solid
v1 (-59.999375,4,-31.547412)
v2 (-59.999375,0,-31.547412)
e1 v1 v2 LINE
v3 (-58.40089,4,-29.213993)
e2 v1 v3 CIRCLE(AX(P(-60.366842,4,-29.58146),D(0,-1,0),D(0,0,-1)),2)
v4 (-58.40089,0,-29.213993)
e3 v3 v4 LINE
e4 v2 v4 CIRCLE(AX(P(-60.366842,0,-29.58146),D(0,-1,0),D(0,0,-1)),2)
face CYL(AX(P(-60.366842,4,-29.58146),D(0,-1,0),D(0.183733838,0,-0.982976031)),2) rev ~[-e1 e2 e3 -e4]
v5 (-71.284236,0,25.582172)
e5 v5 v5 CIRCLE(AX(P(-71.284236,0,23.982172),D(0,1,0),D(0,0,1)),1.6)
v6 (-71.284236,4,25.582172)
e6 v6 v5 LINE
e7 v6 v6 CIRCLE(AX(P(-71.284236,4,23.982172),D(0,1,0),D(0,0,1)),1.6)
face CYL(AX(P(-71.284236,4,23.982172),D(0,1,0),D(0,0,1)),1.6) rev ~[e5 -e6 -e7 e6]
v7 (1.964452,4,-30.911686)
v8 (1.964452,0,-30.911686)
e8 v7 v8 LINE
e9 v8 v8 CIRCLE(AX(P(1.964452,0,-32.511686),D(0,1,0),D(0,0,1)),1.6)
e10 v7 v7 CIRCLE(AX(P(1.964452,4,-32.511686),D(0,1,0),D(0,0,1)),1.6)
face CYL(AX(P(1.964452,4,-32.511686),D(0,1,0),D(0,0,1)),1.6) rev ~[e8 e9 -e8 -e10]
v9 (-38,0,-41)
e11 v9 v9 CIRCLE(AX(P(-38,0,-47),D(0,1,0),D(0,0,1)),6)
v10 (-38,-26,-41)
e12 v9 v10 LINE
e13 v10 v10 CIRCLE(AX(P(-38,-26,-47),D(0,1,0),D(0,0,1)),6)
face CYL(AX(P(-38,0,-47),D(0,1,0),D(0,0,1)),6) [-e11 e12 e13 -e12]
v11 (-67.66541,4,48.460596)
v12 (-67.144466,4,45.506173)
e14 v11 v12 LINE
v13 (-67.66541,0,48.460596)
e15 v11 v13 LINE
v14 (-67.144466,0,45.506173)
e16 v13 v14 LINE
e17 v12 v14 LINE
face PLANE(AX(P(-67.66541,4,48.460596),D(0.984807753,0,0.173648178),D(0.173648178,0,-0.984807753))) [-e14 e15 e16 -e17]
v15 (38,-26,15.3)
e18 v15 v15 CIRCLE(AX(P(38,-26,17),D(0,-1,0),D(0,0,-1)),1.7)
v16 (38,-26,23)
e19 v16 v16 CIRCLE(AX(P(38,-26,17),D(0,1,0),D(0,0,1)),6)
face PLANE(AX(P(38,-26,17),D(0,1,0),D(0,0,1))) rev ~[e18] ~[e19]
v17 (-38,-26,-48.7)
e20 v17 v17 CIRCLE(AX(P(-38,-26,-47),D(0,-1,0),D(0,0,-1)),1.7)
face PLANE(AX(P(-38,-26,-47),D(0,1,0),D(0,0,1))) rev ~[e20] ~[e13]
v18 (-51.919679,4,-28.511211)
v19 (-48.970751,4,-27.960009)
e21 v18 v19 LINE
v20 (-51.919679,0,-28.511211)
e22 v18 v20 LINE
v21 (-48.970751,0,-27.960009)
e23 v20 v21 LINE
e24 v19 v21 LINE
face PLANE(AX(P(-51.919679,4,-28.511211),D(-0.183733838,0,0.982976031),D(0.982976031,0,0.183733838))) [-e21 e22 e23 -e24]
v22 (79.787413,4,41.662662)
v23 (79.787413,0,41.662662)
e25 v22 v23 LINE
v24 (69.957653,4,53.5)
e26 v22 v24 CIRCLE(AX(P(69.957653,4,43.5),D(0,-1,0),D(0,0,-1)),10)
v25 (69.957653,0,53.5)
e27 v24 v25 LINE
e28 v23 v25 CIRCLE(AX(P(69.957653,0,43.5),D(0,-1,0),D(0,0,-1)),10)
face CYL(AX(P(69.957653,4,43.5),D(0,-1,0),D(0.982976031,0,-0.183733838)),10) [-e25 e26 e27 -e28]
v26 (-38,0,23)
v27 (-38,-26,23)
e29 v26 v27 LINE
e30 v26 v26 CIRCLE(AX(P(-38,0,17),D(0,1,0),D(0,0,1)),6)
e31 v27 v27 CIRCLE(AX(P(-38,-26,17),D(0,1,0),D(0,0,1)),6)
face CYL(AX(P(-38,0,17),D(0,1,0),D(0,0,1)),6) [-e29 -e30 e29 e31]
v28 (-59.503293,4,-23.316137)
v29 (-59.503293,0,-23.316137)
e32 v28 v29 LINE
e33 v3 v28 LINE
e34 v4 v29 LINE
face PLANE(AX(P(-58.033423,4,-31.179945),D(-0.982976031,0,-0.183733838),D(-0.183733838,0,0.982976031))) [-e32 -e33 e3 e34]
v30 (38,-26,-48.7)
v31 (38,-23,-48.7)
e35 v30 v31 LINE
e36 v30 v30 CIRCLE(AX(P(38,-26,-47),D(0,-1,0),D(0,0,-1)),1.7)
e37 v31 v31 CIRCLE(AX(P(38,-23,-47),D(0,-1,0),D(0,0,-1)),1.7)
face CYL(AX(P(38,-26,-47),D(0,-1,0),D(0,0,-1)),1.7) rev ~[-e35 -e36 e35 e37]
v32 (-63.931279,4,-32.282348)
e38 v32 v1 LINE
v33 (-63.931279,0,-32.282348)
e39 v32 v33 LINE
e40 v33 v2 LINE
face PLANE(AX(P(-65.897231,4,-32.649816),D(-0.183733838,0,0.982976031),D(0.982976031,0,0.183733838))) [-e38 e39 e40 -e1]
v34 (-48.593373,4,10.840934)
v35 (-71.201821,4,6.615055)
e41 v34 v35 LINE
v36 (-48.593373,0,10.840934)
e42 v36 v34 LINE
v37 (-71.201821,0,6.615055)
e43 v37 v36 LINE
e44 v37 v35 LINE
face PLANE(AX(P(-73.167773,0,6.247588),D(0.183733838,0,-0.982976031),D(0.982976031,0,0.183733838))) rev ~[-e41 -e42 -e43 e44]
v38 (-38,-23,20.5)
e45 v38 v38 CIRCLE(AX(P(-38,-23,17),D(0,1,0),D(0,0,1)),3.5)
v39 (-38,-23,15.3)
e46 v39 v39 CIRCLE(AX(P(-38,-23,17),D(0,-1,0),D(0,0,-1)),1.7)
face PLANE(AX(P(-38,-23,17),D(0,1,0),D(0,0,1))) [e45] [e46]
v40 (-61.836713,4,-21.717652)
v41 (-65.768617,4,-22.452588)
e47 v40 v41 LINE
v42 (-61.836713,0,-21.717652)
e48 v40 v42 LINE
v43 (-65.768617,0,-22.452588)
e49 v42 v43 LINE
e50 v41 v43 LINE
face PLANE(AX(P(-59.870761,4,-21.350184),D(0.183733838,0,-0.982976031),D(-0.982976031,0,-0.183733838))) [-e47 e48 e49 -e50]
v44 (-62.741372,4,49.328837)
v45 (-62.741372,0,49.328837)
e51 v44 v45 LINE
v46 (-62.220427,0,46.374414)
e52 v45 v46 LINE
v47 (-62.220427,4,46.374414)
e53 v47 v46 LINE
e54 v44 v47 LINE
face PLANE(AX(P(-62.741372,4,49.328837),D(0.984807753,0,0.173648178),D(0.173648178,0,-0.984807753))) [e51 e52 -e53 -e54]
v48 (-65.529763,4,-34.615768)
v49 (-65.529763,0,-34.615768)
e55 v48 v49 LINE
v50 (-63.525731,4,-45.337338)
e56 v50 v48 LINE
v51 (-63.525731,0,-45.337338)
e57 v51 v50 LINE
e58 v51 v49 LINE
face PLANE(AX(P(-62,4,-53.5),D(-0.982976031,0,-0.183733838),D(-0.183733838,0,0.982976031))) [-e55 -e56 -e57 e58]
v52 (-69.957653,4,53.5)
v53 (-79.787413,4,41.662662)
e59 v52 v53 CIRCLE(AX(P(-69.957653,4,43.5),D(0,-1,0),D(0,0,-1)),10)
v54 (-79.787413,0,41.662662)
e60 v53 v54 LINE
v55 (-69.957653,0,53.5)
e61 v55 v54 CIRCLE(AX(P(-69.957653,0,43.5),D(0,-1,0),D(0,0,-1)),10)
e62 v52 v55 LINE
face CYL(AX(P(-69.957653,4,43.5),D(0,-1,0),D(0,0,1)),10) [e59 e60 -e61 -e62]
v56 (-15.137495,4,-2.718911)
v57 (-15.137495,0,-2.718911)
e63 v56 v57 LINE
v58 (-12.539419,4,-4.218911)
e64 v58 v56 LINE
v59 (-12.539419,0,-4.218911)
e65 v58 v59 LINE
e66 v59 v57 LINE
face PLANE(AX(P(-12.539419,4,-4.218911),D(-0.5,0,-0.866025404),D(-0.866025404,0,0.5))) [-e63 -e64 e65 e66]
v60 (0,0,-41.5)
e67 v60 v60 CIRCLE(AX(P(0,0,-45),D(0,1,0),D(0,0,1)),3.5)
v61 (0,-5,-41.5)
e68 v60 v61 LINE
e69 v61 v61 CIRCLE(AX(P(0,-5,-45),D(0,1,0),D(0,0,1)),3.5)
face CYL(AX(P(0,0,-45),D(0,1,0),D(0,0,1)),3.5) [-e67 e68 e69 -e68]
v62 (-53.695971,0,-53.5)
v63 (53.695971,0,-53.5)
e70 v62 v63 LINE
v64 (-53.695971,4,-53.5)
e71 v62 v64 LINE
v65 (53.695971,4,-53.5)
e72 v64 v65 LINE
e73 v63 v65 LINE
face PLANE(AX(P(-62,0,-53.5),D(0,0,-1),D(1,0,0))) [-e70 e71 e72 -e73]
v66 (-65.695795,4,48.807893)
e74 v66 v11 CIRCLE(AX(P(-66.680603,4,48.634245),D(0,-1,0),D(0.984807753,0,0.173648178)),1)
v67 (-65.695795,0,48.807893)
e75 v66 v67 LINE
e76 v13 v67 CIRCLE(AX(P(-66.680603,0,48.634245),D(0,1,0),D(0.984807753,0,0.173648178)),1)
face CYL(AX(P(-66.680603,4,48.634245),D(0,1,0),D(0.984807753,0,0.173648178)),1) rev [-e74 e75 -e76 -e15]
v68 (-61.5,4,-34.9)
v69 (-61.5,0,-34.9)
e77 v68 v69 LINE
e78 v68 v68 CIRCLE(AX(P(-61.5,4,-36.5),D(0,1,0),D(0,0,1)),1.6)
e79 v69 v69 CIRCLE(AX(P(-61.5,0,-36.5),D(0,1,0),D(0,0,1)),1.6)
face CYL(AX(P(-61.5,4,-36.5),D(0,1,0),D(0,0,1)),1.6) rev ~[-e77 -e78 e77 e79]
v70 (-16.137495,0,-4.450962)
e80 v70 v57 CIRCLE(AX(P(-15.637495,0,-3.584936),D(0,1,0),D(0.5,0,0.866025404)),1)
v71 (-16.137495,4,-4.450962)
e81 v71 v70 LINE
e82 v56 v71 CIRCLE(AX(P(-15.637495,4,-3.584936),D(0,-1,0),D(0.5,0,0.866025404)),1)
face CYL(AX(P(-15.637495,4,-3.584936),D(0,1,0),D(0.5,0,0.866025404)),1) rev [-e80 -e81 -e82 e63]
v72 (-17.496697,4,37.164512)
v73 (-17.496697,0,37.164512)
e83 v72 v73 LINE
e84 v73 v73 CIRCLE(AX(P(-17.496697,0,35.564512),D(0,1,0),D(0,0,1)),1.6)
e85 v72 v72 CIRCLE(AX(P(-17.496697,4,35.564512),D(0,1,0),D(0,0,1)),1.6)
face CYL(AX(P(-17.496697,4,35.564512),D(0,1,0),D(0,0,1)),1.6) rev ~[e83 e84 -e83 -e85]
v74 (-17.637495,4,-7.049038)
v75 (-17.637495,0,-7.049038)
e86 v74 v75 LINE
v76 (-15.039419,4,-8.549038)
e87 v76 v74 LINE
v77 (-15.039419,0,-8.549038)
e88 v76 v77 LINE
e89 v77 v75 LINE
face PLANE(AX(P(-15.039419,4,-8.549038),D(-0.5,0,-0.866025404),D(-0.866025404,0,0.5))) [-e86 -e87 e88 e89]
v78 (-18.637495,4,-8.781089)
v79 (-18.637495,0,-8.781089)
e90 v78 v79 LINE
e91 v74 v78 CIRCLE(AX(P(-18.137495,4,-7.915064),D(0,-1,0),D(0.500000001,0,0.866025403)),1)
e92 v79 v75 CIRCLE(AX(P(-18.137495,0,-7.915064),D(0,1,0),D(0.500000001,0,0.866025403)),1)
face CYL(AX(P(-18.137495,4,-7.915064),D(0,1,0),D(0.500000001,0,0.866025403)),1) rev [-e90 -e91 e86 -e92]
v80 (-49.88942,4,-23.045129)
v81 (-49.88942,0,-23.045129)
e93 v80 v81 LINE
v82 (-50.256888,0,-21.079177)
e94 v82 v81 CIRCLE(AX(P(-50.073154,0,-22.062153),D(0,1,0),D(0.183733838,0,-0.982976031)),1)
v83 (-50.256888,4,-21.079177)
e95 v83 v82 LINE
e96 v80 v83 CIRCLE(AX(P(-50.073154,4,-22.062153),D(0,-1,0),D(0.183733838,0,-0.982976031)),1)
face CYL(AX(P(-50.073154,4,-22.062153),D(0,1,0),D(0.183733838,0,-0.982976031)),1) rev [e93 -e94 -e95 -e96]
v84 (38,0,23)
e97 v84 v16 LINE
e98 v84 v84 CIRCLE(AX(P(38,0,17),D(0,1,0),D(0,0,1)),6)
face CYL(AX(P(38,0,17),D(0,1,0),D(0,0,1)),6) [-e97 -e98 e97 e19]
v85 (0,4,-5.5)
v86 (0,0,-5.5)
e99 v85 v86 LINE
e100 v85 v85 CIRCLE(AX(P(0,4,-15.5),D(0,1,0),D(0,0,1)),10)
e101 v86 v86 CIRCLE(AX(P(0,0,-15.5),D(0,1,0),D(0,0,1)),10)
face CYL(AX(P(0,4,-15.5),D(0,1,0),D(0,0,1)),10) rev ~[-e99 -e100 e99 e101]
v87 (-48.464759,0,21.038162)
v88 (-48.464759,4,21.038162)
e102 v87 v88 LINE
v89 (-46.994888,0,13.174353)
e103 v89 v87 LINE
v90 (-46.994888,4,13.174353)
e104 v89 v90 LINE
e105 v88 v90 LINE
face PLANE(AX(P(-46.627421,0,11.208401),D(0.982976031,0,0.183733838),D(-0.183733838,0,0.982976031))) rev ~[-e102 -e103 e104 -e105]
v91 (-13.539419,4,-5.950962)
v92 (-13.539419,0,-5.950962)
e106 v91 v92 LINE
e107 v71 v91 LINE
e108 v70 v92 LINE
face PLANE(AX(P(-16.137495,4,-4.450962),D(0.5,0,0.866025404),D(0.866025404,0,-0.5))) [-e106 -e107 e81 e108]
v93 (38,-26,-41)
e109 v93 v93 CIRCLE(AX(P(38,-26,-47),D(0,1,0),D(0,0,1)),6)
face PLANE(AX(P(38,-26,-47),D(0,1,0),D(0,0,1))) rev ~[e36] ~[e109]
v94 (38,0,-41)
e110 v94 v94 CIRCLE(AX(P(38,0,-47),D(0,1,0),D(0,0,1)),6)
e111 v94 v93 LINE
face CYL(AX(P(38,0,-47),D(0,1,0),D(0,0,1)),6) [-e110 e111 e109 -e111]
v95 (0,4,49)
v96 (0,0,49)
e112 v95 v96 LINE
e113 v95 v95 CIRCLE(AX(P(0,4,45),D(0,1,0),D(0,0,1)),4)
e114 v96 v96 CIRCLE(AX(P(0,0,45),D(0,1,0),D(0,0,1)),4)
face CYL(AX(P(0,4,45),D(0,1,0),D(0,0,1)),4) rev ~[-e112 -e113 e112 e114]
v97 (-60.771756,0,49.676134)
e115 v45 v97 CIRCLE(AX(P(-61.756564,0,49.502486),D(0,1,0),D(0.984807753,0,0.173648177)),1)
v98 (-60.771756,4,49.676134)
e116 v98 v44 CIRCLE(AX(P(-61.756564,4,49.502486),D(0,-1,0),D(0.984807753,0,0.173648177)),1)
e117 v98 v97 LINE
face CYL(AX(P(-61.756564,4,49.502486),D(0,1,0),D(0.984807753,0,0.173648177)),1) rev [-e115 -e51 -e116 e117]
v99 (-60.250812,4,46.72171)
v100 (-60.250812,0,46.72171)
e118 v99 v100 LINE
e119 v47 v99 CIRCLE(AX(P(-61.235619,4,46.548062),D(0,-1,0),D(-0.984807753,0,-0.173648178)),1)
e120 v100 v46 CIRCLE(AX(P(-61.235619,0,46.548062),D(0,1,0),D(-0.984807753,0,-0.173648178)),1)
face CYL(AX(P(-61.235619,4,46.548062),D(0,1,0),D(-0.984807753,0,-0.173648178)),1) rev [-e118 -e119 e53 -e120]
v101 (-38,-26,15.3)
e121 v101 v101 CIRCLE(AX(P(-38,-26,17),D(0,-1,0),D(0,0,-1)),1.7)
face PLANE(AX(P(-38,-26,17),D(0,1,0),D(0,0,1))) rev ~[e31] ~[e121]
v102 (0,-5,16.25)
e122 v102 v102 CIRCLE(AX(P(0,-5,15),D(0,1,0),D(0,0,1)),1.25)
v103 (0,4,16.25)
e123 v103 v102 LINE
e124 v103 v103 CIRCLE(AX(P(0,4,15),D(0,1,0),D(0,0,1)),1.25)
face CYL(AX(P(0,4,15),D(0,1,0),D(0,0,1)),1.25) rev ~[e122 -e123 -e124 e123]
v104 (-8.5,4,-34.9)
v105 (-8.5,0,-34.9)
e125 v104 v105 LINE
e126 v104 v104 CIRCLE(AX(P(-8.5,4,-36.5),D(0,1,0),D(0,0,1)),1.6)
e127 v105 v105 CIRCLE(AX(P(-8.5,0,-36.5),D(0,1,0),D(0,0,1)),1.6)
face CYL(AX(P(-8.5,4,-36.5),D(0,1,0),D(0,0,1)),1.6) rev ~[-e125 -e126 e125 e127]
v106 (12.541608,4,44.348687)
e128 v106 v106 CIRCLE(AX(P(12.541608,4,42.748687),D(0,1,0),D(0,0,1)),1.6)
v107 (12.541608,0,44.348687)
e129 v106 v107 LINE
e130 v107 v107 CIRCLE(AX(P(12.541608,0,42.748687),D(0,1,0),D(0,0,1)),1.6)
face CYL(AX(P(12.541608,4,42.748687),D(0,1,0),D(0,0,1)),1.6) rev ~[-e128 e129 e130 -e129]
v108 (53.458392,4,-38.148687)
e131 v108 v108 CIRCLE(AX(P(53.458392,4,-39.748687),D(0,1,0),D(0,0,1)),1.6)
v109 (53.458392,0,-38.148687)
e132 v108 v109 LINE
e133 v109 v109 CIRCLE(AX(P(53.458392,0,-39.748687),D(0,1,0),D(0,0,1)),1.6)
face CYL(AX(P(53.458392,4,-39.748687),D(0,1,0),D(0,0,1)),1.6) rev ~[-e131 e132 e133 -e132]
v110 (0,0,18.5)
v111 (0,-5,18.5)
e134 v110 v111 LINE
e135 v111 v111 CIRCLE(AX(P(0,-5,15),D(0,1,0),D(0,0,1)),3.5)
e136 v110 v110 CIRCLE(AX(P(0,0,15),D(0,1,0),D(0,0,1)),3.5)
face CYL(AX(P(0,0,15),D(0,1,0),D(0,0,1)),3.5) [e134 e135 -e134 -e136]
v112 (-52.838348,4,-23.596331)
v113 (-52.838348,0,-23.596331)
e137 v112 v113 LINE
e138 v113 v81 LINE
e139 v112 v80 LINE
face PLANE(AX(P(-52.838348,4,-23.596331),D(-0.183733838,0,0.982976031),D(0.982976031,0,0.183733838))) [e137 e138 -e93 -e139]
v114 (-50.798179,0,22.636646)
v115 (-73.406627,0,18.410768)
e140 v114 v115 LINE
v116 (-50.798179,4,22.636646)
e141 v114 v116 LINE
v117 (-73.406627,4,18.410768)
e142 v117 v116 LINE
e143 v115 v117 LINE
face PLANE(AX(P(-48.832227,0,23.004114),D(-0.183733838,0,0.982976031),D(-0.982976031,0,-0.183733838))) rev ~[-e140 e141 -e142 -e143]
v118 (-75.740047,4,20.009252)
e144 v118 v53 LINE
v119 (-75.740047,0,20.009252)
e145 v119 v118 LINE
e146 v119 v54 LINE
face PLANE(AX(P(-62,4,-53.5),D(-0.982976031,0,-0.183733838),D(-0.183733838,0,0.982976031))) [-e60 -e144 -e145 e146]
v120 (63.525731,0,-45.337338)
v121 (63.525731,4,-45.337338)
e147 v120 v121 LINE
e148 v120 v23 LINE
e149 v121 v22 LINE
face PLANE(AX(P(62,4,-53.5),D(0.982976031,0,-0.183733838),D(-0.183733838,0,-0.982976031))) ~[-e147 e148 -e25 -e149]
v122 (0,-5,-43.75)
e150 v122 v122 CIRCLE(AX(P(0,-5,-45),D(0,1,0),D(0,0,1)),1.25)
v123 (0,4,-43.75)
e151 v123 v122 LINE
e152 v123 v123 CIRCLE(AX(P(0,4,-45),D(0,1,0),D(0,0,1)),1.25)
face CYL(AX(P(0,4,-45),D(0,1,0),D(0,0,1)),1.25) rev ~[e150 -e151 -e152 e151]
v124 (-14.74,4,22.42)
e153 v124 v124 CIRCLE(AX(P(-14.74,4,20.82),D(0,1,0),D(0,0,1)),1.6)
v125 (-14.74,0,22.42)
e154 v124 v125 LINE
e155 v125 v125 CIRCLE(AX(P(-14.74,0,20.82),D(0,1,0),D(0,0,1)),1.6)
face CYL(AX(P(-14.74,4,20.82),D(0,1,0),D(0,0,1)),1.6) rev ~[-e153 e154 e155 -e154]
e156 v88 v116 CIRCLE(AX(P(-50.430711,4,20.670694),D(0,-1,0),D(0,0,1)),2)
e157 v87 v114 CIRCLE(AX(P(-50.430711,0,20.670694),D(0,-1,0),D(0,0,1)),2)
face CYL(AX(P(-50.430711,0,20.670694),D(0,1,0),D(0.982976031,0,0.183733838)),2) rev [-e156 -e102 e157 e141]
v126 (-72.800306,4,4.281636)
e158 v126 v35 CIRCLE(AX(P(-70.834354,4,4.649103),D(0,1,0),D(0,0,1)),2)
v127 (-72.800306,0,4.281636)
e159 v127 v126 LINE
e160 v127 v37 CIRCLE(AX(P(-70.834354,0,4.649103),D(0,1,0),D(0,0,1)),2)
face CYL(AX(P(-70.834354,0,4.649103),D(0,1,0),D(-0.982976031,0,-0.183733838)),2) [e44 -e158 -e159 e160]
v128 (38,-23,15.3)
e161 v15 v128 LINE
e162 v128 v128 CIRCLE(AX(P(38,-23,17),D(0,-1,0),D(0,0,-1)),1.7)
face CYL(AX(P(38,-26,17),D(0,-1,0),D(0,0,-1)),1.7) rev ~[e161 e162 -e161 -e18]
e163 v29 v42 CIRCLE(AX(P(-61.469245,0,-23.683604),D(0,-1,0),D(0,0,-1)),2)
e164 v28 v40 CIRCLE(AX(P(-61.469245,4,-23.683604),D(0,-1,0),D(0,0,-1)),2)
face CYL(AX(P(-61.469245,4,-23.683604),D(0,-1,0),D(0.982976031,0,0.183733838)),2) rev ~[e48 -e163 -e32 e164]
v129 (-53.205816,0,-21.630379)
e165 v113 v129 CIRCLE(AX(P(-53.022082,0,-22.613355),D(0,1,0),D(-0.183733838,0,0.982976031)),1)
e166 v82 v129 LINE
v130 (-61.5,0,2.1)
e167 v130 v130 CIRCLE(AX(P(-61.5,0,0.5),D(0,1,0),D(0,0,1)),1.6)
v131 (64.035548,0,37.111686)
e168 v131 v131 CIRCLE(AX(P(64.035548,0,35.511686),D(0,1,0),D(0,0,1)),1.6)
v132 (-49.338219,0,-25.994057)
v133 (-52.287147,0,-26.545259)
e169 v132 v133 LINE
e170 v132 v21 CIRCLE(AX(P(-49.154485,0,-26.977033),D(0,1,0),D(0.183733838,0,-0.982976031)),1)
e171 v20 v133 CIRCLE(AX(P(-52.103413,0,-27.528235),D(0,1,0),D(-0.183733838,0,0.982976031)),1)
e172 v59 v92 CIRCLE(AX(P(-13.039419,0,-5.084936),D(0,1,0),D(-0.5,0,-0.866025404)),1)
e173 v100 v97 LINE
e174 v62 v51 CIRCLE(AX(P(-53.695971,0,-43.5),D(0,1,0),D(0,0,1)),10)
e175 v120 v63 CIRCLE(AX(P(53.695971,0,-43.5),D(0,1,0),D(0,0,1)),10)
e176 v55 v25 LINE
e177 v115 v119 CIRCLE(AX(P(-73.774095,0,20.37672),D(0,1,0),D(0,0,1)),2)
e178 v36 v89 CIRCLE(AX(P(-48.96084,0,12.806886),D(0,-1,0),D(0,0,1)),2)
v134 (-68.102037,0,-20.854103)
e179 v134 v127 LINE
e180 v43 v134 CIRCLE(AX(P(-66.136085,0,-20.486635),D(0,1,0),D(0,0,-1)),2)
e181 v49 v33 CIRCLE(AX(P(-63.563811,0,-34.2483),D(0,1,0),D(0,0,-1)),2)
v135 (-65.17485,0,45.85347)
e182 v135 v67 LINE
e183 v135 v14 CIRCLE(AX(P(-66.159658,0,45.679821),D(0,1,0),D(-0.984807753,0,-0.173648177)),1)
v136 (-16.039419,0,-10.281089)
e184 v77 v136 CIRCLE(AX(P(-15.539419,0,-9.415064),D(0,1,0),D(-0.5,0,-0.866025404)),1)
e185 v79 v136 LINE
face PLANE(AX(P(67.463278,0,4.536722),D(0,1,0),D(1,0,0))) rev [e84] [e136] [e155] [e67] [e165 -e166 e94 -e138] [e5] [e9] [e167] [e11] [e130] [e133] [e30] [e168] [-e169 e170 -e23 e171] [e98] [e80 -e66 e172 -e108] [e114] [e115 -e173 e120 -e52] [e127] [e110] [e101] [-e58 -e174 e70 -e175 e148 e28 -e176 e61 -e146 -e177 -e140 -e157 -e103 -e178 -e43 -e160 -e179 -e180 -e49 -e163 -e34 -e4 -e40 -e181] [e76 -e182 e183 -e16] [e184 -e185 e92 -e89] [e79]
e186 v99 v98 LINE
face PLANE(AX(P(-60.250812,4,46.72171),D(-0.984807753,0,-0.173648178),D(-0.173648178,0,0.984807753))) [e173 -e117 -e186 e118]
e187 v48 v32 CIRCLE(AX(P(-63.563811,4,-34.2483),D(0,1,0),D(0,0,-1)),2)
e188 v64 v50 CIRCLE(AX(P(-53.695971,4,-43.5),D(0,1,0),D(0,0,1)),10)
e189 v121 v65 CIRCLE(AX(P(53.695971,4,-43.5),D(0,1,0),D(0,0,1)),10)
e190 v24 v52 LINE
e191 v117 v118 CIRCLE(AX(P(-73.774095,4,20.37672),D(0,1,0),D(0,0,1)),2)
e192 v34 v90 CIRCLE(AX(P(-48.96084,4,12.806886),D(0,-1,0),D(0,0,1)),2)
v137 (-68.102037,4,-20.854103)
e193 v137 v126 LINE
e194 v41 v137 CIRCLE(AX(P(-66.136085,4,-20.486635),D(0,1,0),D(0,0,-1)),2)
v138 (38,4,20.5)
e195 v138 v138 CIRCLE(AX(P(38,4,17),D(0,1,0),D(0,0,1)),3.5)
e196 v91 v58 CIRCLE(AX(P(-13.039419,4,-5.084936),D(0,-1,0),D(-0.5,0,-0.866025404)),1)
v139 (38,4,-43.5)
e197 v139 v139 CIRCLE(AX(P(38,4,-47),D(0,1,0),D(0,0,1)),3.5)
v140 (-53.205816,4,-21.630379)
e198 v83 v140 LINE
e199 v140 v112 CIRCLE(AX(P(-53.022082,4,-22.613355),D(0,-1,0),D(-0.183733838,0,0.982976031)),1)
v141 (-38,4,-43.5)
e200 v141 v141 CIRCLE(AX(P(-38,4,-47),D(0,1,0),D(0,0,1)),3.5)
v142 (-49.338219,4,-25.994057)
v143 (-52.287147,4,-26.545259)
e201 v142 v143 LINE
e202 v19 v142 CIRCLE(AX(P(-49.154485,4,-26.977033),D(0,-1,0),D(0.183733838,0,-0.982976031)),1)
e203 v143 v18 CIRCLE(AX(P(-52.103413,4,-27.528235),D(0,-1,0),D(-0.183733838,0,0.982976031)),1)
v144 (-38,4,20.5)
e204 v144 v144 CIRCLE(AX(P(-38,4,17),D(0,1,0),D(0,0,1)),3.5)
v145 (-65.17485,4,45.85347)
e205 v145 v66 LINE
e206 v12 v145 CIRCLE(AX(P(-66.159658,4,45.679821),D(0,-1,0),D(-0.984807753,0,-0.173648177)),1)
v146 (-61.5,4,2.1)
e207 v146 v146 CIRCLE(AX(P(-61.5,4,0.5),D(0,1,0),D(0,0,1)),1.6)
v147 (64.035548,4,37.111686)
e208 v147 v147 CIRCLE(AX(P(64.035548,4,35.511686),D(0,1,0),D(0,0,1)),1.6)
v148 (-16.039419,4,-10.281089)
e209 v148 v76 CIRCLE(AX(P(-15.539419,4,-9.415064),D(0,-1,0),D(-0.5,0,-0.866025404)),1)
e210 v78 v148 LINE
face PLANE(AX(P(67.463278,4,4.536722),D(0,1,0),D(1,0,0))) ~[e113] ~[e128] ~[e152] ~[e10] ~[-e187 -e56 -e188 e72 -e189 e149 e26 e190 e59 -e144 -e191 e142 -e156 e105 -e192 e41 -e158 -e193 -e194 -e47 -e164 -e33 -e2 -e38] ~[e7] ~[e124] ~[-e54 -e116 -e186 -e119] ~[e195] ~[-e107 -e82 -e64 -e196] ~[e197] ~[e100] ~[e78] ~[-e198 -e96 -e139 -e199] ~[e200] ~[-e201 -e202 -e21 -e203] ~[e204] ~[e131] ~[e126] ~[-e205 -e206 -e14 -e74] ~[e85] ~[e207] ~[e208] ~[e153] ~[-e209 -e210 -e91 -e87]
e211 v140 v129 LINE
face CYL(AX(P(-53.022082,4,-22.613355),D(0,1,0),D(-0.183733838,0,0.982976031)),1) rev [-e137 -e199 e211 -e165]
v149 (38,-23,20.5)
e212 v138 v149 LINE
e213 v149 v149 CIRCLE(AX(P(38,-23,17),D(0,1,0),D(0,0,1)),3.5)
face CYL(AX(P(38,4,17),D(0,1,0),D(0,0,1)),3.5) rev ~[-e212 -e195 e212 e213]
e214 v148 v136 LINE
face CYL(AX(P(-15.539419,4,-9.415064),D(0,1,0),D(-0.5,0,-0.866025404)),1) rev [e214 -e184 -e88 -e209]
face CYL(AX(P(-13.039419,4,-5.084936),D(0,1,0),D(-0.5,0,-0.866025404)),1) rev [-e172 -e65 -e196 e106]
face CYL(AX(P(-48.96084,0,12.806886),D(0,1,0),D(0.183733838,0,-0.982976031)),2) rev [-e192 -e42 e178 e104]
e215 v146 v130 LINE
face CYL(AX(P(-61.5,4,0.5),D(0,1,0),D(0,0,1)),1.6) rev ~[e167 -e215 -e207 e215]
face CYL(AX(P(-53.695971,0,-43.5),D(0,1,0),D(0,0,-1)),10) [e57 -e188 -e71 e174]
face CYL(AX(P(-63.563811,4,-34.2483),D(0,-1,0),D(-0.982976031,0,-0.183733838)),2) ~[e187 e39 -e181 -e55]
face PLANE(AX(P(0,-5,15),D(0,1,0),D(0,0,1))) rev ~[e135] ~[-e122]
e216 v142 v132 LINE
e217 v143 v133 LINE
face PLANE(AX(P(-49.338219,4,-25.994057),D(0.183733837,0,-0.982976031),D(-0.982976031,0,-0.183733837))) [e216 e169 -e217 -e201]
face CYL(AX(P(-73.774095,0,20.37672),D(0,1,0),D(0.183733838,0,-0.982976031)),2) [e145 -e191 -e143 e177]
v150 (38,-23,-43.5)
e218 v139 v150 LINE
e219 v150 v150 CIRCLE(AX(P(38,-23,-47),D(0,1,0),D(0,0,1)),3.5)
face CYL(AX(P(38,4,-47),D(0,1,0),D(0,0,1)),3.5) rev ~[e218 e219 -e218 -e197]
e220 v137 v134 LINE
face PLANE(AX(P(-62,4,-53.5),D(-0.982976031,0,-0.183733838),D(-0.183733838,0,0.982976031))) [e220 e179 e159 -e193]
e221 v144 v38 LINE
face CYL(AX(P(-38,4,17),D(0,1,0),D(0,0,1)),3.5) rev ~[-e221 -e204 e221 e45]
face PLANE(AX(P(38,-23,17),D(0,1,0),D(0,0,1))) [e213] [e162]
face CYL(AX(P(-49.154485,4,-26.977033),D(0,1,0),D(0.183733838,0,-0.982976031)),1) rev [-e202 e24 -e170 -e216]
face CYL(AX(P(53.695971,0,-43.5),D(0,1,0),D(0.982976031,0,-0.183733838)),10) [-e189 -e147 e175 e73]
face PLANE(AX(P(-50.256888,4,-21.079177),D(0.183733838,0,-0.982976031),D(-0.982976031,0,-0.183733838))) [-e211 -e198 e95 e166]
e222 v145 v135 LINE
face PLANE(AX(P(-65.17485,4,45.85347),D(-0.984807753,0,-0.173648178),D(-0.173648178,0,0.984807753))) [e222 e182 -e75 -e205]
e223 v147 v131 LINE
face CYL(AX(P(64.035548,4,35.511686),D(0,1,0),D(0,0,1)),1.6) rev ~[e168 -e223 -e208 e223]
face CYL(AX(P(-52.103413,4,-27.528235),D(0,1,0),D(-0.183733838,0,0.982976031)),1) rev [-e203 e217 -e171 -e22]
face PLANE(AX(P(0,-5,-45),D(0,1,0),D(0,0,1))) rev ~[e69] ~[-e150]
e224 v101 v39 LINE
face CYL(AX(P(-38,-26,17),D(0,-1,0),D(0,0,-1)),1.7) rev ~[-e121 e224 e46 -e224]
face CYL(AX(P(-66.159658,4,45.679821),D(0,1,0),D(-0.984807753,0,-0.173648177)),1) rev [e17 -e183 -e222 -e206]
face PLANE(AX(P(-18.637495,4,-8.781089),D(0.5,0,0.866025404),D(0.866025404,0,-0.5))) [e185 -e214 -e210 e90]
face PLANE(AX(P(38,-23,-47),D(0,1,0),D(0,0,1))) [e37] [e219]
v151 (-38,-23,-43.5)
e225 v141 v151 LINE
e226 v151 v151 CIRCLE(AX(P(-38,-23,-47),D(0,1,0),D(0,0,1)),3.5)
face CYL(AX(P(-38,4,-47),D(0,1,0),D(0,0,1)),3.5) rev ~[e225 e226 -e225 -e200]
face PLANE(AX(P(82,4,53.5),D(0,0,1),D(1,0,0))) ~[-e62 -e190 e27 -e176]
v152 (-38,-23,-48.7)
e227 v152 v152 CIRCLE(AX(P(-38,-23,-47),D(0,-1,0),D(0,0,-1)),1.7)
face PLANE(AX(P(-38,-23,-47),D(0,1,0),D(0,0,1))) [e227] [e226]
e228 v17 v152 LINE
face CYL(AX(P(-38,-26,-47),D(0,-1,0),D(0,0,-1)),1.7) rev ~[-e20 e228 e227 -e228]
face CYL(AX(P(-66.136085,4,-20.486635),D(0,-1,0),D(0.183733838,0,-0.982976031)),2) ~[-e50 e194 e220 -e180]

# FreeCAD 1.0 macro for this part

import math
import FreeCAD as App
import Part
import Sketcher
from FreeCAD import Vector
Q = App.Units.Quantity


def edges_at(feature, points):
    """Names of the edges that pass closest to the given points."""
    edges = feature.Shape.Edges
    near = lambda p: min(range(len(edges)), key=lambda i: edges[i].distToShape(Part.Vertex(*p))[0])
    return sorted({f"Edge{near(p) + 1}" for p in points})

doc = App.newDocument("Part")
body = doc.addObject("PartDesign::Body", "Body")

sketch1 = doc.addObject("Sketcher::SketchObject", "Sketch")
body.addObject(sketch1)
sketch1.AttachmentSupport = (doc.XZ_Plane, [""])
sketch1.MapMode = "FlatFace"
sketch1.addGeometry([
    Part.LineSegment(Vector(-62, -54, 0), Vector(-62, 54, 0)),
    Part.LineSegment(Vector(-62, 54, 0), Vector(62, 54, 0)),
    Part.LineSegment(Vector(62, 54, 0), Vector(62, -54, 0)),
    Part.LineSegment(Vector(62, -54, 0), Vector(-62, -54, 0)),
], False)
sketch1.addConstraint([
    Sketcher.Constraint("Coincident", 0, 2, 1, 1),
    Sketcher.Constraint("Coincident", 1, 2, 2, 1),
    Sketcher.Constraint("Coincident", 2, 2, 3, 1),
    Sketcher.Constraint("Coincident", 3, 2, 0, 1),
    Sketcher.Constraint("Vertical", 0),
    Sketcher.Constraint("Horizontal", 1),
    Sketcher.Constraint("Vertical", 2),
    Sketcher.Constraint("Horizontal", 3),
    Sketcher.Constraint("Symmetric", 0, 2, 2, 2, -1, 1),
    Sketcher.Constraint("DistanceX", 1, 1, 1, 2, 124.0),
    Sketcher.Constraint("DistanceY", 0, 1, 0, 2, 107.0),
])
pad1 = doc.addObject("PartDesign::Pad", "Pad")
body.addObject(pad1)
pad1.Profile = sketch1
pad1.Length = 4
pad1.Reversed = True

sketch2 = doc.addObject("Sketcher::SketchObject", "Sketch001")
body.addObject(sketch2)
sketch2.AttachmentSupport = (doc.XZ_Plane, [""])
sketch2.MapMode = "FlatFace"
sketch2.addGeometry([
    Part.Circle(Vector(-38, 17, 0), Vector(0, 0, 1), 6),
    Part.Circle(Vector(38, 17, 0), Vector(0, 0, 1), 6),
    Part.Circle(Vector(38, -47, 0), Vector(0, 0, 1), 6),
    Part.Circle(Vector(-38, -47, 0), Vector(0, 0, 1), 6),
], False)
sketch2.addConstraint([
    Sketcher.Constraint("Equal", 0, 1),
    Sketcher.Constraint("Equal", 1, 2),
    Sketcher.Constraint("Equal", 2, 3),
    Sketcher.Constraint("Symmetric", 0, 3, 1, 3, -2),
    Sketcher.Constraint("Symmetric", 2, 3, 3, 3, -2),
    Sketcher.Constraint("Vertical", 1, 3, 2, 3),
    Sketcher.Constraint("Diameter", 0, 12.0),
    Sketcher.Constraint("DistanceX", 0, 3, -1, 1, 38.0),
    Sketcher.Constraint("DistanceY", -1, 1, 0, 3, 17.0),
    Sketcher.Constraint("DistanceY", 2, 3, -1, 1, 47.0),
])
pad2 = doc.addObject("PartDesign::Pad", "Pad001")
body.addObject(pad2)
pad2.Profile = sketch2
pad2.Length = 26

sketch3 = doc.addObject("Sketcher::SketchObject", "Sketch002")
body.addObject(sketch3)
sketch3.AttachmentSupport = (doc.XZ_Plane, [""])
sketch3.MapMode = "FlatFace"
sketch3.AttachmentOffset = App.Placement(Vector(0, 0, -4), App.Rotation())
sketch3.addGeometry(Part.Circle(Vector(0, -16, 0), Vector(0, 0, 1), 10), False)
sketch3.addConstraint([
    Sketcher.Constraint("PointOnObject", 0, 3, -2),
    Sketcher.Constraint("Diameter", 0, 20.0),
    Sketcher.Constraint("DistanceY", 0, 3, -1, 1, 15.5),
])
pocket1 = doc.addObject("PartDesign::Pocket", "Pocket")
body.addObject(pocket1)
pocket1.Profile = sketch3
pocket1.Type = "UpToFirst"
pocket1.Reversed = True

sketch4 = doc.addObject("Sketcher::SketchObject", "Sketch003")
body.addObject(sketch4)
sketch4.AttachmentSupport = (doc.XZ_Plane, [""])
sketch4.MapMode = "FlatFace"
sketch4.AttachmentOffset = App.Placement(Vector(0, 0, -4), App.Rotation())
sketch4.addGeometry([
    Part.LineSegment(Vector(-62, -54, 0), Vector(-82, 54, 0)),
    Part.LineSegment(Vector(-82, 54, 0), Vector(-62, 54, 0)),
    Part.LineSegment(Vector(-62, 54, 0), Vector(-62, -54, 0)),
], False)
sketch4.addConstraint([
    Sketcher.Constraint("Coincident", 0, 2, 1, 1),
    Sketcher.Constraint("Coincident", 1, 2, 2, 1),
    Sketcher.Constraint("Coincident", 2, 2, 0, 1),
    Sketcher.Constraint("Horizontal", 1),
    Sketcher.Constraint("Vertical", 2),
    Sketcher.Constraint("DistanceX", 1, 1, 1, 2, 20.0),
    Sketcher.Constraint("DistanceY", 2, 2, 2, 1, 107.0),
    Sketcher.Constraint("DistanceX", 0, 2, -1, 1, 82.0),
    Sketcher.Constraint("DistanceY", -1, 1, 0, 2, 53.5),
])
pad3 = doc.addObject("PartDesign::Pad", "Pad002")
body.addObject(pad3)
pad3.Profile = sketch4
pad3.Length = 4

sketch5 = doc.addObject("Sketcher::SketchObject", "Sketch004")
body.addObject(sketch5)
sketch5.AttachmentSupport = (doc.XZ_Plane, [""])
sketch5.MapMode = "FlatFace"
sketch5.AttachmentOffset = App.Placement(Vector(0, 0, -4), App.Rotation())
sketch5.addGeometry([
    Part.Circle(Vector(-61.5, -36.5, 0), Vector(0, 0, 1), 1.6),
    Part.Circle(Vector(-8.5, -36.5, 0), Vector(0, 0, 1), 1.6),
    Part.Circle(Vector(-61.5, 0.5, 0), Vector(0, 0, 1), 1.6),
], False)
sketch5.addConstraint([
    Sketcher.Constraint("Equal", 0, 1),
    Sketcher.Constraint("Equal", 1, 2),
    Sketcher.Constraint("Horizontal", 0, 3, 1, 3),
    Sketcher.Constraint("Vertical", 0, 3, 2, 3),
    Sketcher.Constraint("Diameter", 0, 3.2),
    Sketcher.Constraint("DistanceX", 0, 3, 1, 3, 53.0),
    Sketcher.Constraint("DistanceY", 0, 3, 2, 3, 37.0),
    Sketcher.Constraint("DistanceX", 0, 3, -1, 1, 61.5),
    Sketcher.Constraint("DistanceY", 0, 3, -1, 1, 36.5),
])
pocket2 = doc.addObject("PartDesign::Pocket", "Pocket001")
body.addObject(pocket2)
pocket2.Profile = sketch5
pocket2.Type = "ThroughAll"
pocket2.Reversed = True
doc.recompute()

mirrored = doc.addObject("PartDesign::Mirrored", "Mirrored")
body.addObject(mirrored)
mirrored.Originals = [pad3]
mirrored.MirrorPlane = (doc.YZ_Plane, [""])
body.Tip = mirrored

sketch6 = doc.addObject("Sketcher::SketchObject", "Sketch005")
body.addObject(sketch6)
sketch6.AttachmentSupport = (doc.XZ_Plane, [""])
sketch6.MapMode = "FlatFace"
sketch6.AttachmentOffset = App.Placement(Vector(0, 0, -4), App.Rotation())
sketch6.addGeometry([
    Part.Circle(Vector(53.5, -39.7, 0), Vector(0, 0, 1), 1.6),
    Part.Circle(Vector(2, -32.5, 0), Vector(0, 0, 1), 1.6),
    Part.Circle(Vector(12.5, 42.7, 0), Vector(0, 0, 1), 1.6),
    Part.Circle(Vector(64, 35.5, 0), Vector(0, 0, 1), 1.6),
], False)
sketch6.addConstraint([
    Sketcher.Constraint("Equal", 0, 1),
    Sketcher.Constraint("Equal", 1, 2),
    Sketcher.Constraint("Equal", 2, 3),
    Sketcher.Constraint("Diameter", 0, 3.2),
    Sketcher.Constraint("DistanceY", 0, 3, 1, 3, 7.237001),
    Sketcher.Constraint("DistanceY", 3, 3, 2, 3, 7.237001),
    Sketcher.Constraint("DistanceX", -1, 1, 0, 3, 53.458392),
    Sketcher.Constraint("DistanceX", -1, 1, 2, 3, 12.541608),
    Sketcher.Constraint("DistanceX", 1, 3, 0, 3, 51.49394),
    Sketcher.Constraint("DistanceX", 2, 3, 3, 3, 51.49394),
    Sketcher.Constraint("DistanceY", 1, 3, 3, 3, 68.023372),
    Sketcher.Constraint("DistanceY", 0, 3, -1, 1, 39.748687),
])
pocket3 = doc.addObject("PartDesign::Pocket", "Pocket002")
body.addObject(pocket3)
pocket3.Profile = sketch6
pocket3.Type = "ThroughAll"
pocket3.Reversed = True
doc.recompute()

fillet = doc.addObject("PartDesign::Fillet", "Fillet")
body.addObject(fillet)
fillet.Base = (pocket3, edges_at(pocket3, [
    (-82, 2, 53.5),
    (82, 2, 53.5),
    (-62, 2, -53.5),
    (62, 2, -53.5),
]))
fillet.Radius = 10

sketch7 = doc.addObject("Sketcher::SketchObject", "Sketch006")
body.addObject(sketch7)
sketch7.AttachmentSupport = (doc.XZ_Plane, [""])
sketch7.MapMode = "FlatFace"
sketch7.AttachmentOffset = App.Placement(Vector(0, 0, -4), App.Rotation())
sketch7.addGeometry([
    Part.Circle(Vector(-38, -47, 0), Vector(0, 0, 1), 3.5),
    Part.Circle(Vector(38, -47, 0), Vector(0, 0, 1), 3.5),
    Part.Circle(Vector(-38, 17, 0), Vector(0, 0, 1), 3.5),
    Part.Circle(Vector(38, 17, 0), Vector(0, 0, 1), 3.5),
], False)
sketch7.addConstraint([
    Sketcher.Constraint("Equal", 0, 1),
    Sketcher.Constraint("Equal", 1, 2),
    Sketcher.Constraint("Equal", 2, 3),
    Sketcher.Constraint("Symmetric", 0, 3, 1, 3, -2),
    Sketcher.Constraint("Symmetric", 2, 3, 3, 3, -2),
    Sketcher.Constraint("Vertical", 0, 3, 2, 3),
    Sketcher.Constraint("Diameter", 0, 7.0),
    Sketcher.Constraint("DistanceX", 0, 3, -1, 1, 38.0),
    Sketcher.Constraint("DistanceY", 0, 3, -1, 1, 47.0),
    Sketcher.Constraint("DistanceY", -1, 1, 2, 3, 17.0),
])
pocket4 = doc.addObject("PartDesign::Pocket", "Pocket003")
body.addObject(pocket4)
pocket4.Profile = sketch7
pocket4.Length = 27
pocket4.Reversed = True

sketch8 = doc.addObject("Sketcher::SketchObject", "Sketch007")
body.addObject(sketch8)
sketch8.AttachmentSupport = (doc.XZ_Plane, [""])
sketch8.MapMode = "FlatFace"
sketch8.AttachmentOffset = App.Placement(Vector(0, 0, 26), App.Rotation())
sketch8.addGeometry([
    Part.Circle(Vector(-38, -47, 0), Vector(0, 0, 1), 1.7),
    Part.Circle(Vector(-38, 17, 0), Vector(0, 0, 1), 1.7),
    Part.Circle(Vector(38, 17, 0), Vector(0, 0, 1), 1.7),
    Part.Circle(Vector(38, -47, 0), Vector(0, 0, 1), 1.7),
], False)
sketch8.addConstraint([
    Sketcher.Constraint("Equal", 0, 1),
    Sketcher.Constraint("Equal", 1, 2),
    Sketcher.Constraint("Equal", 2, 3),
    Sketcher.Constraint("Symmetric", 1, 3, 2, 3, -2),
    Sketcher.Constraint("Symmetric", 0, 3, 3, 3, -2),
    Sketcher.Constraint("Vertical", 0, 3, 1, 3),
    Sketcher.Constraint("Diameter", 0, 3.4),
    Sketcher.Constraint("DistanceX", 0, 3, -1, 1, 38.0),
    Sketcher.Constraint("DistanceY", 0, 3, -1, 1, 47.0),
    Sketcher.Constraint("DistanceY", -1, 1, 1, 3, 17.0),
])
pocket5 = doc.addObject("PartDesign::Pocket", "Pocket004")
body.addObject(pocket5)
pocket5.Profile = sketch8
pocket5.Type = "ThroughAll"

sketch9 = doc.addObject("Sketcher::SketchObject", "Sketch008")
body.addObject(sketch9)
sketch9.AttachmentSupport = (doc.XZ_Plane, [""])
sketch9.MapMode = "FlatFace"
sketch9.addGeometry([
    Part.LineSegment(Vector(-49, 23, 0), Vector(-75, 18, 0)),
    Part.LineSegment(Vector(-75, 18, 0), Vector(-73, 6, 0)),
    Part.LineSegment(Vector(-73, 6, 0), Vector(-47, 11, 0)),
    Part.LineSegment(Vector(-47, 11, 0), Vector(-49, 23, 0)),
], False)
sketch9.addConstraint([
    Sketcher.Constraint("Coincident", 0, 2, 1, 1),
    Sketcher.Constraint("Coincident", 1, 2, 2, 1),
    Sketcher.Constraint("Coincident", 2, 2, 3, 1),
    Sketcher.Constraint("Coincident", 3, 2, 0, 1),
    Sketcher.Constraint("Perpendicular", 0, 1),
    Sketcher.Constraint("Perpendicular", 1, 2),
    Sketcher.Constraint("Perpendicular", 2, 3),
    Sketcher.Constraint("Distance", 0, 27.0),
    Sketcher.Constraint("Distance", 1, 12.0),
    Sketcher.Constraint("DistanceY", -1, 1, 0, 2, 18.0433),
    Sketcher.Constraint("DistanceY", -1, 1, 2, 2, 11.208401),
    Sketcher.Constraint("DistanceX", 0, 2, -1, 1, 75.372579),
])
pocket6 = doc.addObject("PartDesign::Pocket", "Pocket005")
body.addObject(pocket6)
pocket6.Profile = sketch9
pocket6.Type = "UpToFirst"
doc.recompute()

fillet2 = doc.addObject("PartDesign::Fillet", "Fillet001")
body.addObject(fillet2)
fillet2.Base = (pocket6, edges_at(pocket6, [
    (-48.832, 2, 23.004),
    (-46.627, 2, 11.208),
    (-73.168, 2, 6.248),
    (-75.373, 2, 18.043),
]))
fillet2.Radius = 2

sketch10 = doc.addObject("Sketcher::SketchObject", "Sketch009")
body.addObject(sketch10)
sketch10.AttachmentSupport = (doc.XZ_Plane, [""])
sketch10.MapMode = "FlatFace"
sketch10.addGeometry([
    Part.Circle(Vector(0, -45, 0), Vector(0, 0, 1), 3.5),
    Part.Circle(Vector(0, 15, 0), Vector(0, 0, 1), 3.5),
], False)
sketch10.addConstraint([
    Sketcher.Constraint("Equal", 0, 1),
    Sketcher.Constraint("PointOnObject", 0, 3, -2),
    Sketcher.Constraint("PointOnObject", 1, 3, -2),
    Sketcher.Constraint("Diameter", 0, 7.0),
    Sketcher.Constraint("DistanceY", 0, 3, -1, 1, 45.0),
    Sketcher.Constraint("DistanceY", -1, 1, 1, 3, 15.0),
])
pad4 = doc.addObject("PartDesign::Pad", "Pad003")
body.addObject(pad4)
pad4.Profile = sketch10
pad4.Length = 5

sketch11 = doc.addObject("Sketcher::SketchObject", "Sketch010")
body.addObject(sketch11)
sketch11.AttachmentSupport = (doc.XZ_Plane, [""])
sketch11.MapMode = "FlatFace"
sketch11.AttachmentOffset = App.Placement(Vector(0, 0, -4), App.Rotation())
sketch11.addGeometry(Part.Circle(Vector(0, -45, 0), Vector(0, 0, 1), 1.2), False)
sketch11.addConstraint([
    Sketcher.Constraint("PointOnObject", 0, 3, -2),
    Sketcher.Constraint("Diameter", 0, 2.5),
    Sketcher.Constraint("DistanceY", 0, 3, -1, 1, 45.0),
])
pocket7 = doc.addObject("PartDesign::Pocket", "Pocket006")
body.addObject(pocket7)
pocket7.Profile = sketch11
pocket7.Type = "UpToFirst"
pocket7.Reversed = True

sketch12 = doc.addObject("Sketcher::SketchObject", "Sketch011")
body.addObject(sketch12)
sketch12.AttachmentSupport = (doc.XZ_Plane, [""])
sketch12.MapMode = "FlatFace"
sketch12.AttachmentOffset = App.Placement(Vector(0, 0, -4), App.Rotation())
sketch12.addGeometry(Part.Circle(Vector(0, 15, 0), Vector(0, 0, 1), 1.2), False)
sketch12.addConstraint([
    Sketcher.Constraint("PointOnObject", 0, 3, -2),
    Sketcher.Constraint("Diameter", 0, 2.5),
    Sketcher.Constraint("DistanceY", -1, 1, 0, 3, 15.0),
])
pocket8 = doc.addObject("PartDesign::Pocket", "Pocket007")
body.addObject(pocket8)
pocket8.Profile = sketch12
pocket8.Type = "UpToFirst"
pocket8.Reversed = True

sketch13 = doc.addObject("Sketcher::SketchObject", "Sketch012")
body.addObject(sketch13)
sketch13.AttachmentSupport = (doc.XZ_Plane, [""])
sketch13.MapMode = "FlatFace"
sketch13.AttachmentOffset = App.Placement(Vector(0, 0, -4), App.Rotation())
sketch13.addGeometry(Part.Circle(Vector(0, 45, 0), Vector(0, 0, 1), 4), False)
sketch13.addConstraint([
    Sketcher.Constraint("PointOnObject", 0, 3, -2),
    Sketcher.Constraint("Diameter", 0, 8.0),
    Sketcher.Constraint("DistanceY", -1, 1, 0, 3, 45.0),
])
pocket9 = doc.addObject("PartDesign::Pocket", "Pocket008")
body.addObject(pocket9)
pocket9.Profile = sketch13
pocket9.Type = "UpToFirst"
pocket9.Reversed = True

sketch14 = doc.addObject("Sketcher::SketchObject", "Sketch013")
body.addObject(sketch14)
sketch14.AttachmentSupport = (doc.XZ_Plane, [""])
sketch14.MapMode = "FlatFace"
sketch14.AttachmentOffset = App.Placement(Vector(0, 0, -4), App.Rotation())
sketch14.addGeometry([
    Part.LineSegment(Vector(-68, -23, 0), Vector(-60, -21, 0)),
    Part.LineSegment(Vector(-60, -21, 0), Vector(-58, -31, 0)),
    Part.LineSegment(Vector(-58, -31, 0), Vector(-66, -33, 0)),
    Part.LineSegment(Vector(-66, -33, 0), Vector(-68, -23, 0)),
], False)
sketch14.addConstraint([
    Sketcher.Constraint("Coincident", 0, 2, 1, 1),
    Sketcher.Constraint("Coincident", 1, 2, 2, 1),
    Sketcher.Constraint("Coincident", 2, 2, 3, 1),
    Sketcher.Constraint("Coincident", 3, 2, 0, 1),
    Sketcher.Constraint("Perpendicular", 0, 1),
    Sketcher.Constraint("Perpendicular", 1, 2),
    Sketcher.Constraint("Perpendicular", 2, 3),
    Sketcher.Constraint("Distance", 0, 8.0),
    Sketcher.Constraint("Distance", 1, 10.0),
    Sketcher.Constraint("DistanceX", 0, 2, -1, 1, 59.870761),
    Sketcher.Constraint("DistanceX", 2, 2, -1, 1, 65.897231),
    Sketcher.Constraint("DistanceY", 0, 2, -1, 1, 21.350184),
])
pocket10 = doc.addObject("PartDesign::Pocket", "Pocket009")
body.addObject(pocket10)
pocket10.Profile = sketch14
pocket10.Type = "UpToFirst"
pocket10.Reversed = True
doc.recompute()

fillet3 = doc.addObject("PartDesign::Fillet", "Fillet002")
body.addObject(fillet3)
fillet3.Base = (pocket10, edges_at(pocket10, [
    (-58.033, 2, -31.18),
    (-59.871, 2, -21.35),
    (-67.735, 2, -22.82),
    (-65.897, 2, -32.65),
]))
fillet3.Radius = 2

sketch15 = doc.addObject("Sketcher::SketchObject", "Sketch014")
body.addObject(sketch15)
sketch15.AttachmentSupport = (doc.XZ_Plane, [""])
sketch15.MapMode = "FlatFace"
sketch15.AttachmentOffset = App.Placement(Vector(0, 0, -4), App.Rotation())
sketch15.addGeometry([
    Part.LineSegment(Vector(-52.3, -26.5, 0), Vector(-49.3, -26, 0)),
    Part.ArcOfCircle(Part.Circle(Vector(-49.2, -27, 0), Vector(0, 0, 1), 1), math.radians(-79), math.radians(101)),
    Part.LineSegment(Vector(-49, -28, 0), Vector(-51.9, -28.5, 0)),
    Part.ArcOfCircle(Part.Circle(Vector(-52.1, -27.5, 0), Vector(0, 0, 1), 1), math.radians(101), math.radians(281)),
], False)
sketch15.addConstraint([
    Sketcher.Constraint("Tangent", 0, 2, 1, 2),
    Sketcher.Constraint("Tangent", 1, 1, 2, 1),
    Sketcher.Constraint("Tangent", 2, 2, 3, 2),
    Sketcher.Constraint("Tangent", 3, 1, 0, 1),
    Sketcher.Constraint("Equal", 1, 3),
    Sketcher.Constraint("Radius", 1, 1.0),
    Sketcher.Constraint("Distance", 0, 3.0),
    Sketcher.Constraint("DistanceY", 3, 3, 1, 3, 0.551202),
    Sketcher.Constraint("DistanceX", 0, 2, -1, 1, 49.338219),
    Sketcher.Constraint("DistanceY", 1, 1, -1, 1, 27.960009),
])
pocket11 = doc.addObject("PartDesign::Pocket", "Pocket010")
body.addObject(pocket11)
pocket11.Profile = sketch15
pocket11.Type = "UpToFirst"
pocket11.Reversed = True

sketch16 = doc.addObject("Sketcher::SketchObject", "Sketch015")
body.addObject(sketch16)
sketch16.AttachmentSupport = (doc.XZ_Plane, [""])
sketch16.MapMode = "FlatFace"
sketch16.AttachmentOffset = App.Placement(Vector(0, 0, -4), App.Rotation())
sketch16.addGeometry([
    Part.LineSegment(Vector(-53.2, -21.6, 0), Vector(-50.3, -21.1, 0)),
    Part.ArcOfCircle(Part.Circle(Vector(-50.1, -22.1, 0), Vector(0, 0, 1), 1), math.radians(-79), math.radians(101)),
    Part.LineSegment(Vector(-49.9, -23, 0), Vector(-52.8, -23.6, 0)),
    Part.ArcOfCircle(Part.Circle(Vector(-53, -22.6, 0), Vector(0, 0, 1), 1), math.radians(101), math.radians(281)),
], False)
sketch16.addConstraint([
    Sketcher.Constraint("Tangent", 0, 2, 1, 2),
    Sketcher.Constraint("Tangent", 1, 1, 2, 1),
    Sketcher.Constraint("Tangent", 2, 2, 3, 2),
    Sketcher.Constraint("Tangent", 3, 1, 0, 1),
    Sketcher.Constraint("Equal", 1, 3),
    Sketcher.Constraint("Radius", 1, 1.0),
    Sketcher.Constraint("Distance", 0, 3.0),
    Sketcher.Constraint("DistanceY", 3, 3, 1, 3, 0.551202),
    Sketcher.Constraint("DistanceX", 1, 1, -1, 1, 49.88942),
    Sketcher.Constraint("DistanceY", 1, 1, -1, 1, 23.045129),
])
pocket12 = doc.addObject("PartDesign::Pocket", "Pocket011")
body.addObject(pocket12)
pocket12.Profile = sketch16
pocket12.Type = "UpToFirst"
pocket12.Reversed = True

sketch17 = doc.addObject("Sketcher::SketchObject", "Sketch016")
body.addObject(sketch17)
sketch17.AttachmentSupport = (doc.XZ_Plane, [""])
sketch17.MapMode = "FlatFace"
sketch17.AttachmentOffset = App.Placement(Vector(0, 0, -4), App.Rotation())
sketch17.addGeometry([
    Part.LineSegment(Vector(-16, -10.3, 0), Vector(-18.6, -8.8, 0)),
    Part.ArcOfCircle(Part.Circle(Vector(-18.1, -7.9, 0), Vector(0, 0, 1), 1), math.radians(60), math.radians(240)),
    Part.LineSegment(Vector(-17.6, -7, 0), Vector(-15, -8.5, 0)),
    Part.ArcOfCircle(Part.Circle(Vector(-15.5, -9.4, 0), Vector(0, 0, 1), 1), math.radians(-120), math.radians(60)),
], False)
sketch17.addConstraint([
    Sketcher.Constraint("Tangent", 0, 2, 1, 2),
    Sketcher.Constraint("Tangent", 1, 1, 2, 1),
    Sketcher.Constraint("Tangent", 2, 2, 3, 2),
    Sketcher.Constraint("Tangent", 3, 1, 0, 1),
    Sketcher.Constraint("Equal", 1, 3),
    Sketcher.Constraint("Radius", 1, 1.0),
    Sketcher.Constraint("Angle", 0, Q("150 deg")),
    Sketcher.Constraint("Distance", 0, 3.0),
    Sketcher.Constraint("DistanceX", 3, 3, -1, 1, 15.539419),
    Sketcher.Constraint("DistanceY", 0, 2, -1, 1, 8.781089),
])
pocket13 = doc.addObject("PartDesign::Pocket", "Pocket012")
body.addObject(pocket13)
pocket13.Profile = sketch17
pocket13.Type = "UpToFirst"
pocket13.Reversed = True

sketch18 = doc.addObject("Sketcher::SketchObject", "Sketch017")
body.addObject(sketch18)
sketch18.AttachmentSupport = (doc.XZ_Plane, [""])
sketch18.MapMode = "FlatFace"
sketch18.AttachmentOffset = App.Placement(Vector(0, 0, -4), App.Rotation())
sketch18.addGeometry([
    Part.LineSegment(Vector(-13.5, -6, 0), Vector(-16.1, -4.5, 0)),
    Part.ArcOfCircle(Part.Circle(Vector(-15.6, -3.6, 0), Vector(0, 0, 1), 1), math.radians(60), math.radians(240)),
    Part.LineSegment(Vector(-15.1, -2.7, 0), Vector(-12.5, -4.2, 0)),
    Part.ArcOfCircle(Part.Circle(Vector(-13, -5.1, 0), Vector(0, 0, 1), 1), math.radians(-120), math.radians(60)),
], False)
sketch18.addConstraint([
    Sketcher.Constraint("Tangent", 0, 2, 1, 2),
    Sketcher.Constraint("Tangent", 1, 1, 2, 1),
    Sketcher.Constraint("Tangent", 2, 2, 3, 2),
    Sketcher.Constraint("Tangent", 3, 1, 0, 1),
    Sketcher.Constraint("Equal", 1, 3),
    Sketcher.Constraint("Radius", 1, 1.0),
    Sketcher.Constraint("Angle", 0, Q("150 deg")),
    Sketcher.Constraint("Distance", 0, 3.0),
    Sketcher.Constraint("DistanceX", 3, 3, -1, 1, 13.039419),
    Sketcher.Constraint("DistanceY", 0, 2, -1, 1, 4.450962),
])
pocket14 = doc.addObject("PartDesign::Pocket", "Pocket013")
body.addObject(pocket14)
pocket14.Profile = sketch18
pocket14.Type = "UpToFirst"
pocket14.Reversed = True

sketch19 = doc.addObject("Sketcher::SketchObject", "Sketch018")
body.addObject(sketch19)
sketch19.AttachmentSupport = (doc.XZ_Plane, [""])
sketch19.MapMode = "FlatFace"
sketch19.AttachmentOffset = App.Placement(Vector(0, 0, -4), App.Rotation())
sketch19.addGeometry(Part.Circle(Vector(-14.7, 20.8, 0), Vector(0, 0, 1), 1.6), False)
sketch19.addConstraint([
    Sketcher.Constraint("Diameter", 0, 3.2),
    Sketcher.Constraint("DistanceX", 0, 3, -1, 1, 14.74),
    Sketcher.Constraint("DistanceY", -1, 1, 0, 3, 20.82),
])
pocket15 = doc.addObject("PartDesign::Pocket", "Pocket014")
body.addObject(pocket15)
pocket15.Profile = sketch19
pocket15.Type = "UpToFirst"
pocket15.Reversed = True

sketch20 = doc.addObject("Sketcher::SketchObject", "Sketch019")
body.addObject(sketch20)
sketch20.AttachmentSupport = (doc.XZ_Plane, [""])
sketch20.MapMode = "FlatFace"
sketch20.AttachmentOffset = App.Placement(Vector(0, 0, -4), App.Rotation())
sketch20.addGeometry(Part.Circle(Vector(-17.5, 35.6, 0), Vector(0, 0, 1), 1.6), False)
sketch20.addConstraint([
    Sketcher.Constraint("Diameter", 0, 3.2),
    Sketcher.Constraint("DistanceY", -1, 1, 0, 3, 35.564512),
    Sketcher.Constraint("DistanceX", 0, 3, -1, 1, 17.496697),
])
pocket16 = doc.addObject("PartDesign::Pocket", "Pocket015")
body.addObject(pocket16)
pocket16.Profile = sketch20
pocket16.Type = "UpToFirst"
pocket16.Reversed = True

sketch21 = doc.addObject("Sketcher::SketchObject", "Sketch020")
body.addObject(sketch21)
sketch21.AttachmentSupport = (doc.XZ_Plane, [""])
sketch21.MapMode = "FlatFace"
sketch21.AttachmentOffset = App.Placement(Vector(0, 0, -4), App.Rotation())
sketch21.addGeometry(Part.Circle(Vector(-71.3, 24, 0), Vector(0, 0, 1), 1.6), False)
sketch21.addConstraint([
    Sketcher.Constraint("Diameter", 0, 3.2),
    Sketcher.Constraint("DistanceY", -1, 1, 0, 3, 23.982172),
    Sketcher.Constraint("DistanceX", 0, 3, -1, 1, 71.284236),
])
pocket17 = doc.addObject("PartDesign::Pocket", "Pocket016")
body.addObject(pocket17)
pocket17.Profile = sketch21
pocket17.Type = "UpToFirst"
pocket17.Reversed = True

sketch22 = doc.addObject("Sketcher::SketchObject", "Sketch021")
body.addObject(sketch22)
sketch22.AttachmentSupport = (doc.XZ_Plane, [""])
sketch22.MapMode = "FlatFace"
sketch22.AttachmentOffset = App.Placement(Vector(0, 0, -4), App.Rotation())
sketch22.addGeometry([
    Part.LineSegment(Vector(-67.1, 45.5, 0), Vector(-67.7, 48.5, 0)),
    Part.ArcOfCircle(Part.Circle(Vector(-66.7, 48.6, 0), Vector(0, 0, 1), 1), math.radians(10), math.radians(190)),
    Part.LineSegment(Vector(-65.7, 48.8, 0), Vector(-65.2, 45.9, 0)),
    Part.ArcOfCircle(Part.Circle(Vector(-66.2, 45.7, 0), Vector(0, 0, 1), 1), math.radians(-170), math.radians(10)),
], False)
sketch22.addConstraint([
    Sketcher.Constraint("Tangent", 0, 2, 1, 2),
    Sketcher.Constraint("Tangent", 1, 1, 2, 1),
    Sketcher.Constraint("Tangent", 2, 2, 3, 2),
    Sketcher.Constraint("Tangent", 3, 1, 0, 1),
    Sketcher.Constraint("Equal", 1, 3),
    Sketcher.Constraint("Radius", 1, 1.0),
    Sketcher.Constraint("Angle", 0, Q("100 deg")),
    Sketcher.Constraint("Distance", 0, 3.0),
    Sketcher.Constraint("DistanceX", 3, 3, -1, 1, 66.159658),
    Sketcher.Constraint("DistanceY", -1, 1, 3, 3, 45.679821),
])
pocket18 = doc.addObject("PartDesign::Pocket", "Pocket017")
body.addObject(pocket18)
pocket18.Profile = sketch22
pocket18.Type = "UpToFirst"
pocket18.Reversed = True

sketch23 = doc.addObject("Sketcher::SketchObject", "Sketch022")
body.addObject(sketch23)
sketch23.AttachmentSupport = (doc.XZ_Plane, [""])
sketch23.MapMode = "FlatFace"
sketch23.AttachmentOffset = App.Placement(Vector(0, 0, -4), App.Rotation())
sketch23.addGeometry([
    Part.LineSegment(Vector(-60.8, 49.7, 0), Vector(-60.3, 46.7, 0)),
    Part.ArcOfCircle(Part.Circle(Vector(-61.2, 46.5, 0), Vector(0, 0, 1), 1), math.radians(-170), math.radians(10)),
    Part.LineSegment(Vector(-62.2, 46.4, 0), Vector(-62.7, 49.3, 0)),
    Part.ArcOfCircle(Part.Circle(Vector(-61.8, 49.5, 0), Vector(0, 0, 1), 1), math.radians(10), math.radians(190)),
], False)
sketch23.addConstraint([
    Sketcher.Constraint("Tangent", 0, 2, 1, 2),
    Sketcher.Constraint("Tangent", 1, 1, 2, 1),
    Sketcher.Constraint("Tangent", 2, 2, 3, 2),
    Sketcher.Constraint("Tangent", 3, 1, 0, 1),
    Sketcher.Constraint("Equal", 1, 3),
    Sketcher.Constraint("Radius", 1, 1.0),
    Sketcher.Constraint("Angle", 0, Q("-80 deg")),
    Sketcher.Constraint("Distance", 0, 3.0),
    Sketcher.Constraint("DistanceX", 1, 3, -1, 1, 61.235619),
    Sketcher.Constraint("DistanceY", -1, 1, 0, 2, 46.72171),
])
pocket19 = doc.addObject("PartDesign::Pocket", "Pocket018")
body.addObject(pocket19)
pocket19.Profile = sketch23
pocket19.Type = "UpToFirst"
pocket19.Reversed = True

doc.recompute()
